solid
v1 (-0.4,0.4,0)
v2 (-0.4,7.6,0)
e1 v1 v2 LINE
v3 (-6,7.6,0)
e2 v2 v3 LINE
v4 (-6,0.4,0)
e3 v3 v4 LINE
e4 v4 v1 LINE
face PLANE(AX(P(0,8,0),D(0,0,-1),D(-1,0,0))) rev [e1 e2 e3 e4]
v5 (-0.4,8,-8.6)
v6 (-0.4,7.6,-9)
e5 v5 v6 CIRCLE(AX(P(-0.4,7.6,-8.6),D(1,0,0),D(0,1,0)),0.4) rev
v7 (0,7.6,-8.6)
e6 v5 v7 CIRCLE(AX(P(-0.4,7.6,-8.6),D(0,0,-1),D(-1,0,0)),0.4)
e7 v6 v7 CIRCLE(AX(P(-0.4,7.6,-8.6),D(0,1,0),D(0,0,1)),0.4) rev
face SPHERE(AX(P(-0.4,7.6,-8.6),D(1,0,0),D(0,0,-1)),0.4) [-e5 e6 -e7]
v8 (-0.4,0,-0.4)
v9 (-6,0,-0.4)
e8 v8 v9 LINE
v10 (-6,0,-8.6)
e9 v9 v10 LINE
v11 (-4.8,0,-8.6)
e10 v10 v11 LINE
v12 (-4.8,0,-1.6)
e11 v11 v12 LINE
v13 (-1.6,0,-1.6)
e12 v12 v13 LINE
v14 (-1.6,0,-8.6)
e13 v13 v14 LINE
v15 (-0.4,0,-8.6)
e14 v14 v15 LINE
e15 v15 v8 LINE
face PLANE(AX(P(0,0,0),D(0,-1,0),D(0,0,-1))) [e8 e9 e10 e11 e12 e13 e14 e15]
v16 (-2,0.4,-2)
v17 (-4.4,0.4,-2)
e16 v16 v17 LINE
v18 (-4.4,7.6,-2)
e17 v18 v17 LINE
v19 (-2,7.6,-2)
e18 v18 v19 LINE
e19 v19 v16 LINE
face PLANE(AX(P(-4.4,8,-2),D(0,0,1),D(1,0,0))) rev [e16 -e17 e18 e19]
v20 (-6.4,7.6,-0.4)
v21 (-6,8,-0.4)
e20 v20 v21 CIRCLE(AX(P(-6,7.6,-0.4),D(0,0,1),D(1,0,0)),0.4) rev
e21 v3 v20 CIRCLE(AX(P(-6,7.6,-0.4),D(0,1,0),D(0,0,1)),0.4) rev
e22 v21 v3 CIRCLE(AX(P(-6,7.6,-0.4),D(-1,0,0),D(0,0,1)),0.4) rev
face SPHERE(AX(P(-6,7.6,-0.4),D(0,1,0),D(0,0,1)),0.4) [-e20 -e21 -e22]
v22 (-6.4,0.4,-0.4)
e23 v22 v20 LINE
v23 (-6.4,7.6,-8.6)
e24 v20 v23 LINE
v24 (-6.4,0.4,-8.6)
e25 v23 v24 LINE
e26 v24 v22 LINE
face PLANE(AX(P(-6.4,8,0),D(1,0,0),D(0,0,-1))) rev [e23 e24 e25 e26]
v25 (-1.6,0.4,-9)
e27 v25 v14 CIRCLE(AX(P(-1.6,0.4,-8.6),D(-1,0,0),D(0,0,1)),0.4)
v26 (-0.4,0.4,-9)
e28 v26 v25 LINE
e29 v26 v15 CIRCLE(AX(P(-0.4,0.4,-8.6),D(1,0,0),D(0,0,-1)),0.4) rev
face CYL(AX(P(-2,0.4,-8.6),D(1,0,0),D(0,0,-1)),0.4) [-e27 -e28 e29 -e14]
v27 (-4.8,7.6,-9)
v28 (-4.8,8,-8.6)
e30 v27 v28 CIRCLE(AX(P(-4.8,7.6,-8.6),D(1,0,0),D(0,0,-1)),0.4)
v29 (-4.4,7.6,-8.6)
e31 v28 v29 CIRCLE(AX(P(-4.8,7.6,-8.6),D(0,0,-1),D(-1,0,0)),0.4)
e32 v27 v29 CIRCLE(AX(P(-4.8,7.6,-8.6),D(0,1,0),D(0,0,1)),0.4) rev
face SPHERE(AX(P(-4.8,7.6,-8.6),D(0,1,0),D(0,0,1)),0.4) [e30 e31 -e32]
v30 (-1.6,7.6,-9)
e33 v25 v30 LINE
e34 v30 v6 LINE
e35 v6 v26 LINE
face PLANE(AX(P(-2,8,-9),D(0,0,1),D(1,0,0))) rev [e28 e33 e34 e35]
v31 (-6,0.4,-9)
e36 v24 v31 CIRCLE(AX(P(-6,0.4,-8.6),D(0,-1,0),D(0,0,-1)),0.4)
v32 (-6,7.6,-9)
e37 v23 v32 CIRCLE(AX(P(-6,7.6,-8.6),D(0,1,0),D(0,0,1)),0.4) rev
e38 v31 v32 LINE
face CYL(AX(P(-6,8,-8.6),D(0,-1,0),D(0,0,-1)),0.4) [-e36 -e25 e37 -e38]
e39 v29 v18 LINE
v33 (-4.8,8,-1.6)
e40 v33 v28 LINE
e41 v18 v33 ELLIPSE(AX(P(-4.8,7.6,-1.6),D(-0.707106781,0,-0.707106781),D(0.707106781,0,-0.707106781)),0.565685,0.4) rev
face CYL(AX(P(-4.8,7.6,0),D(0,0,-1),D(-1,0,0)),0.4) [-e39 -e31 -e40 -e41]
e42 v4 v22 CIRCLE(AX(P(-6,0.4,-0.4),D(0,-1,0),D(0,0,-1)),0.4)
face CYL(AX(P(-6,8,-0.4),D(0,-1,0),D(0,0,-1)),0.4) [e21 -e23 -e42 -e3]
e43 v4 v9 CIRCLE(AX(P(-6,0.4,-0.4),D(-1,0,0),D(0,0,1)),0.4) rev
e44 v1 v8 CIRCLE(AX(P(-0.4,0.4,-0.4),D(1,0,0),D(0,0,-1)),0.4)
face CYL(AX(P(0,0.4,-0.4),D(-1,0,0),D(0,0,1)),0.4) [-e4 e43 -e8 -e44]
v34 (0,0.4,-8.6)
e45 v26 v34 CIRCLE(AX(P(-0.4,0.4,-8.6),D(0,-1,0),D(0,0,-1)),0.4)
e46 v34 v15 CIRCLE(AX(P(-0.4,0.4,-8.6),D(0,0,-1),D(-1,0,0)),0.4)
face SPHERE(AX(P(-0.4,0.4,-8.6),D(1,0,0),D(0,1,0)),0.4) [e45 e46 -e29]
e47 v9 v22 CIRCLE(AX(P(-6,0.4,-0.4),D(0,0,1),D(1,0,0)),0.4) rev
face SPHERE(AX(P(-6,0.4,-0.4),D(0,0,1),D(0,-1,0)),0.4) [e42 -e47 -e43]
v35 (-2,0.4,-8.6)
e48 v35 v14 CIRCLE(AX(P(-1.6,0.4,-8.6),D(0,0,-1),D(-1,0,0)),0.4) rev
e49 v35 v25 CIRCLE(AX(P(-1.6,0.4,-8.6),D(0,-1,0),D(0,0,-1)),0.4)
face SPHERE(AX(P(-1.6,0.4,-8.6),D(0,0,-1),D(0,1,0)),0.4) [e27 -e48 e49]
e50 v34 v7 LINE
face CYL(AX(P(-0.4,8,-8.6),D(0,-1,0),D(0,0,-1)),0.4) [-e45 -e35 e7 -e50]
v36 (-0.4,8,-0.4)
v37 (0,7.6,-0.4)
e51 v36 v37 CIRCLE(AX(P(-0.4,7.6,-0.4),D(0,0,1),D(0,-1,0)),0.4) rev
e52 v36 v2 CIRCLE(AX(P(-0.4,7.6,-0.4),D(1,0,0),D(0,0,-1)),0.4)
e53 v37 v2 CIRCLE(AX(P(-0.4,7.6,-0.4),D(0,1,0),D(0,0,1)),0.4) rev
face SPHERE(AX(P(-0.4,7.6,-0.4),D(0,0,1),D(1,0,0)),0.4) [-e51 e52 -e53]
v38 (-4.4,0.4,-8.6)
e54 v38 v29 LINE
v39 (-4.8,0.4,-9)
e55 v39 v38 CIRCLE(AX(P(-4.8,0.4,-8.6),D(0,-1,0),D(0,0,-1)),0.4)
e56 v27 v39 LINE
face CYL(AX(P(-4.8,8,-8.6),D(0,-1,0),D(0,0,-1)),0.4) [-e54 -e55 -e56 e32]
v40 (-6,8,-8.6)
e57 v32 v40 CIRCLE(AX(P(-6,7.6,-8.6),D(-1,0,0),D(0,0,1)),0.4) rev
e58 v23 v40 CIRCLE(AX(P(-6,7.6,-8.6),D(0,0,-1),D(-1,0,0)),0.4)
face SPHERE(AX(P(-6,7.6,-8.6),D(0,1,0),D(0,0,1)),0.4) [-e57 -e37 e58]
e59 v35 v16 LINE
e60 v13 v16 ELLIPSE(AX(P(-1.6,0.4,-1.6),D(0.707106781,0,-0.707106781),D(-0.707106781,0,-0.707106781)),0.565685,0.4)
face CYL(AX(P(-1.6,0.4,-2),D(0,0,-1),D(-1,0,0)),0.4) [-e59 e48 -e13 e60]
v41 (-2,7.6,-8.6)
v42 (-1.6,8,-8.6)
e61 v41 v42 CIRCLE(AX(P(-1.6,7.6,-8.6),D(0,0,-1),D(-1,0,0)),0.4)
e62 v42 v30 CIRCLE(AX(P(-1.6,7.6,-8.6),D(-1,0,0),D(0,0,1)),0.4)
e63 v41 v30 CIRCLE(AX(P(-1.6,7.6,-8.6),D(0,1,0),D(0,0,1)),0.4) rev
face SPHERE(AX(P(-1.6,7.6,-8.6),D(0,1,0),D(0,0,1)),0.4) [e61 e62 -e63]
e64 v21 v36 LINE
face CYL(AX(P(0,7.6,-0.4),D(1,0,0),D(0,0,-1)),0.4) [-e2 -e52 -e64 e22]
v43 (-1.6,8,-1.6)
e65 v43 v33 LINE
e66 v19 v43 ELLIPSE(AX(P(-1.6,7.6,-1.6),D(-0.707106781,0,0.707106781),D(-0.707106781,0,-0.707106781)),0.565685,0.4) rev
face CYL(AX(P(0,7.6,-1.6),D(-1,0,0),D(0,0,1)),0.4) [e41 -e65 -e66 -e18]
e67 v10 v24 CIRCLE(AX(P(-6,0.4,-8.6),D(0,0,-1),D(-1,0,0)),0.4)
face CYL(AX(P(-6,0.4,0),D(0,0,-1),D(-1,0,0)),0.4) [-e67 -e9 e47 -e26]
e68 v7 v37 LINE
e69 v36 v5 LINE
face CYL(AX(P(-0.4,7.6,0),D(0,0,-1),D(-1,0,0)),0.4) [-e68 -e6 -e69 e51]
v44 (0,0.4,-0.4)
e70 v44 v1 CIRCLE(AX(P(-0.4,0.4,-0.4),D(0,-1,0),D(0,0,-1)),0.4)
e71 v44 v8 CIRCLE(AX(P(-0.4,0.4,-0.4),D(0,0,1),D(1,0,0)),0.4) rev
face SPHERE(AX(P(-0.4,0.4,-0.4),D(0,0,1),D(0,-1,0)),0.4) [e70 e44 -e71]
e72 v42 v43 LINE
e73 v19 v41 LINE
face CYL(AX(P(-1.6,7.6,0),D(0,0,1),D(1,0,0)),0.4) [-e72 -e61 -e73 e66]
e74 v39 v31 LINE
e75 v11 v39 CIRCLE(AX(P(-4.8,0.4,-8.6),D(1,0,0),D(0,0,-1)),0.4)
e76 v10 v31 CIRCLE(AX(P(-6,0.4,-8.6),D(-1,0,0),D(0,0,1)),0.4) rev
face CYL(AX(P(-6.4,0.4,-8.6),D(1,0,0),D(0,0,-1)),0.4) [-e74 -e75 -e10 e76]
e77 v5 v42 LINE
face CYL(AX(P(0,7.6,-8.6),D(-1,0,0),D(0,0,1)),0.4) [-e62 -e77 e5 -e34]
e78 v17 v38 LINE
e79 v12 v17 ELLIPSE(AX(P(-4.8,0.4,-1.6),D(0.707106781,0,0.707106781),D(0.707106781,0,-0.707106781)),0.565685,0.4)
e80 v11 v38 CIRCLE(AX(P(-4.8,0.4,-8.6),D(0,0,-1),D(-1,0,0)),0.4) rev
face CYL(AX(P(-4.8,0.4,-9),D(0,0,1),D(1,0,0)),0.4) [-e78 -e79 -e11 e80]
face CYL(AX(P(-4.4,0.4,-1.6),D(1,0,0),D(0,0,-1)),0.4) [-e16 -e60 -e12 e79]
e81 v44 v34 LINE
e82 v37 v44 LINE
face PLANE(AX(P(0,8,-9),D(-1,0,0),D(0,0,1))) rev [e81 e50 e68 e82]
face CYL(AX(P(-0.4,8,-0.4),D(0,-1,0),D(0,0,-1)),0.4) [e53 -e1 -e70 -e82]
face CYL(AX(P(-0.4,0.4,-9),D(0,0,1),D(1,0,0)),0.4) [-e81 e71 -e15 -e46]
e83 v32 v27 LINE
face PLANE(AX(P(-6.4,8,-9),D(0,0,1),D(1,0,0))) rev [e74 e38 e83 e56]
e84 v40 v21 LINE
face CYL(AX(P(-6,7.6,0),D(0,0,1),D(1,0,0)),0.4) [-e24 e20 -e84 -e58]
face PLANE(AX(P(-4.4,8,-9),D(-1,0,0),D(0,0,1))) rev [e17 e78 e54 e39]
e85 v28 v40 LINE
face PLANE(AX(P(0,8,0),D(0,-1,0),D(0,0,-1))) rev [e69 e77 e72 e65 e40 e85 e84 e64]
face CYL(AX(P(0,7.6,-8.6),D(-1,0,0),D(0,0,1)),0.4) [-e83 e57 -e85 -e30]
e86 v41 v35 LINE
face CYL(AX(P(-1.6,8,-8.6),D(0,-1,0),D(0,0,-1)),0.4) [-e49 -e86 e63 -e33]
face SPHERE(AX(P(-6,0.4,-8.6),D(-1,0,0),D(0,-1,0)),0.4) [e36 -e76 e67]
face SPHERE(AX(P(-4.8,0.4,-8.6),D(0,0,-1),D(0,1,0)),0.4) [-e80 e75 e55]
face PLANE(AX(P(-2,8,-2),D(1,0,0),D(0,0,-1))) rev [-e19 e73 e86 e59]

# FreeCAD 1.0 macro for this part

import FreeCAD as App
import Part
import Sketcher

V = App.Vector


def edges_at(feature, points):
    """Names of the edges that pass closest to the given points."""
    edges = feature.Shape.Edges
    near = lambda p: min(range(len(edges)), key=lambda i: edges[i].distToShape(Part.Vertex(*p))[0])
    return sorted({f"Edge{near(p) + 1}" for p in points})


def add_polygon(sketch, points):
    """Adds a closed chain of lines whose ends are joined by coincident constraints."""
    first, n = sketch.GeometryCount, len(points)
    for a, b in zip(points, points[1:] + points[:1]):
        sketch.addGeometry(Part.LineSegment(App.Vector(*a, 0), App.Vector(*b, 0)), False)
    for i in range(n):
        sketch.addConstraint(Sketcher.Constraint("Coincident", first + i, 2, first + (i + 1) % n, 1))

doc = App.newDocument("Part")
params = doc.addObject("Spreadsheet::Sheet", "Params")
for row, (alias, value) in enumerate([
    ("sketch1_width", "2 mm"),
    ("sketch1_height", "9 mm"),
    ("sketch1_height2", "7 mm"),
    ("sketch1_width2", "6.4 mm"),
    ("pad1_length", "8 mm"),
    ("fillet_radius", "0.4 mm"),
], start=1):
    params.set(f"A{row}", alias)
    params.set(f"B{row}", "=" + value)
    params.setAlias(f"B{row}", alias)

body = doc.addObject("PartDesign::Body", "Body")

# Sketch on XZ plane
sketch1 = body.newObject("Sketcher::SketchObject", "Sketch")
sketch1.AttachmentSupport = (doc.getObject("XZ_Plane"), [""])
sketch1.MapMode = "FlatFace"
add_polygon(sketch1, [(-6.4, 0), (0, 0), (0, -9), (-2, -9), (-2, -2), (-4.4, -2), (-4.4, -9), (-6.4, -9)])  # lines 0-7
sketch1.addConstraint(Sketcher.Constraint("Horizontal", 0))
sketch1.addConstraint(Sketcher.Constraint("Vertical", 1))
sketch1.addConstraint(Sketcher.Constraint("Horizontal", 2))
sketch1.addConstraint(Sketcher.Constraint("Vertical", 3))
sketch1.addConstraint(Sketcher.Constraint("Horizontal", 4))
sketch1.addConstraint(Sketcher.Constraint("Vertical", 5))
sketch1.addConstraint(Sketcher.Constraint("Horizontal", 6))
sketch1.addConstraint(Sketcher.Constraint("Vertical", 7))
sketch1.addConstraint(Sketcher.Constraint("Coincident", 0, 2, -1, 1))
sketch1.addConstraint(Sketcher.Constraint("Horizontal", 2, 2, 5, 2))
sketch1.addConstraint(Sketcher.Constraint("Equal", 2, 6))
sketch1.addConstraint(Sketcher.Constraint("DistanceX", 2, 2, 2, 1, 2.0))
sketch1.addConstraint(Sketcher.Constraint("DistanceY", 1, 2, 1, 1, 9.0))
sketch1.addConstraint(Sketcher.Constraint("DistanceY", 3, 1, 3, 2, 7.0))
sketch1.addConstraint(Sketcher.Constraint("DistanceX", 0, 1, 0, 2, 6.4))
sketch1.setExpression("Constraints[19]", "Params.sketch1_width")
sketch1.setExpression("Constraints[20]", "Params.sketch1_height")
sketch1.setExpression("Constraints[21]", "Params.sketch1_height2")
sketch1.setExpression("Constraints[22]", "Params.sketch1_width2")
pad1 = body.newObject("PartDesign::Pad", "Pad")
pad1.Profile = sketch1
pad1.setExpression("Length", "Params.pad1_length")
pad1.Reversed = True
doc.recompute()

fillet = body.newObject("PartDesign::Fillet", "Fillet")
fillet.Base = (pad1, edges_at(pad1, [
    (-3.2, 0, -2),
    (-2, 0, -5.5),
    (-1, 0, -9),
    (0, 0, -4.5),
    (-2, 8, -5.5),
    (0, 4, 0),
    (-6.4, 4, 0),
    (-6.4, 4, -9),
    (-4.4, 4, -9),
    (-2, 4, -9),
    (0, 4, -9),
    (-3.2, 8, -2),
    (-4.4, 8, -5.5),
    (-5.4, 8, -9),
    (-6.4, 8, -4.5),
    (-3.2, 8, 0),
    (0, 8, -4.5),
    (-3.2, 0, 0),
    (-1, 8, -9),
    (-6.4, 0, -4.5),
    (-5.4, 0, -9),
    (-4.4, 0, -5.5),
]))
fillet.setExpression("Radius", "Params.fillet_radius")

doc.recompute()
